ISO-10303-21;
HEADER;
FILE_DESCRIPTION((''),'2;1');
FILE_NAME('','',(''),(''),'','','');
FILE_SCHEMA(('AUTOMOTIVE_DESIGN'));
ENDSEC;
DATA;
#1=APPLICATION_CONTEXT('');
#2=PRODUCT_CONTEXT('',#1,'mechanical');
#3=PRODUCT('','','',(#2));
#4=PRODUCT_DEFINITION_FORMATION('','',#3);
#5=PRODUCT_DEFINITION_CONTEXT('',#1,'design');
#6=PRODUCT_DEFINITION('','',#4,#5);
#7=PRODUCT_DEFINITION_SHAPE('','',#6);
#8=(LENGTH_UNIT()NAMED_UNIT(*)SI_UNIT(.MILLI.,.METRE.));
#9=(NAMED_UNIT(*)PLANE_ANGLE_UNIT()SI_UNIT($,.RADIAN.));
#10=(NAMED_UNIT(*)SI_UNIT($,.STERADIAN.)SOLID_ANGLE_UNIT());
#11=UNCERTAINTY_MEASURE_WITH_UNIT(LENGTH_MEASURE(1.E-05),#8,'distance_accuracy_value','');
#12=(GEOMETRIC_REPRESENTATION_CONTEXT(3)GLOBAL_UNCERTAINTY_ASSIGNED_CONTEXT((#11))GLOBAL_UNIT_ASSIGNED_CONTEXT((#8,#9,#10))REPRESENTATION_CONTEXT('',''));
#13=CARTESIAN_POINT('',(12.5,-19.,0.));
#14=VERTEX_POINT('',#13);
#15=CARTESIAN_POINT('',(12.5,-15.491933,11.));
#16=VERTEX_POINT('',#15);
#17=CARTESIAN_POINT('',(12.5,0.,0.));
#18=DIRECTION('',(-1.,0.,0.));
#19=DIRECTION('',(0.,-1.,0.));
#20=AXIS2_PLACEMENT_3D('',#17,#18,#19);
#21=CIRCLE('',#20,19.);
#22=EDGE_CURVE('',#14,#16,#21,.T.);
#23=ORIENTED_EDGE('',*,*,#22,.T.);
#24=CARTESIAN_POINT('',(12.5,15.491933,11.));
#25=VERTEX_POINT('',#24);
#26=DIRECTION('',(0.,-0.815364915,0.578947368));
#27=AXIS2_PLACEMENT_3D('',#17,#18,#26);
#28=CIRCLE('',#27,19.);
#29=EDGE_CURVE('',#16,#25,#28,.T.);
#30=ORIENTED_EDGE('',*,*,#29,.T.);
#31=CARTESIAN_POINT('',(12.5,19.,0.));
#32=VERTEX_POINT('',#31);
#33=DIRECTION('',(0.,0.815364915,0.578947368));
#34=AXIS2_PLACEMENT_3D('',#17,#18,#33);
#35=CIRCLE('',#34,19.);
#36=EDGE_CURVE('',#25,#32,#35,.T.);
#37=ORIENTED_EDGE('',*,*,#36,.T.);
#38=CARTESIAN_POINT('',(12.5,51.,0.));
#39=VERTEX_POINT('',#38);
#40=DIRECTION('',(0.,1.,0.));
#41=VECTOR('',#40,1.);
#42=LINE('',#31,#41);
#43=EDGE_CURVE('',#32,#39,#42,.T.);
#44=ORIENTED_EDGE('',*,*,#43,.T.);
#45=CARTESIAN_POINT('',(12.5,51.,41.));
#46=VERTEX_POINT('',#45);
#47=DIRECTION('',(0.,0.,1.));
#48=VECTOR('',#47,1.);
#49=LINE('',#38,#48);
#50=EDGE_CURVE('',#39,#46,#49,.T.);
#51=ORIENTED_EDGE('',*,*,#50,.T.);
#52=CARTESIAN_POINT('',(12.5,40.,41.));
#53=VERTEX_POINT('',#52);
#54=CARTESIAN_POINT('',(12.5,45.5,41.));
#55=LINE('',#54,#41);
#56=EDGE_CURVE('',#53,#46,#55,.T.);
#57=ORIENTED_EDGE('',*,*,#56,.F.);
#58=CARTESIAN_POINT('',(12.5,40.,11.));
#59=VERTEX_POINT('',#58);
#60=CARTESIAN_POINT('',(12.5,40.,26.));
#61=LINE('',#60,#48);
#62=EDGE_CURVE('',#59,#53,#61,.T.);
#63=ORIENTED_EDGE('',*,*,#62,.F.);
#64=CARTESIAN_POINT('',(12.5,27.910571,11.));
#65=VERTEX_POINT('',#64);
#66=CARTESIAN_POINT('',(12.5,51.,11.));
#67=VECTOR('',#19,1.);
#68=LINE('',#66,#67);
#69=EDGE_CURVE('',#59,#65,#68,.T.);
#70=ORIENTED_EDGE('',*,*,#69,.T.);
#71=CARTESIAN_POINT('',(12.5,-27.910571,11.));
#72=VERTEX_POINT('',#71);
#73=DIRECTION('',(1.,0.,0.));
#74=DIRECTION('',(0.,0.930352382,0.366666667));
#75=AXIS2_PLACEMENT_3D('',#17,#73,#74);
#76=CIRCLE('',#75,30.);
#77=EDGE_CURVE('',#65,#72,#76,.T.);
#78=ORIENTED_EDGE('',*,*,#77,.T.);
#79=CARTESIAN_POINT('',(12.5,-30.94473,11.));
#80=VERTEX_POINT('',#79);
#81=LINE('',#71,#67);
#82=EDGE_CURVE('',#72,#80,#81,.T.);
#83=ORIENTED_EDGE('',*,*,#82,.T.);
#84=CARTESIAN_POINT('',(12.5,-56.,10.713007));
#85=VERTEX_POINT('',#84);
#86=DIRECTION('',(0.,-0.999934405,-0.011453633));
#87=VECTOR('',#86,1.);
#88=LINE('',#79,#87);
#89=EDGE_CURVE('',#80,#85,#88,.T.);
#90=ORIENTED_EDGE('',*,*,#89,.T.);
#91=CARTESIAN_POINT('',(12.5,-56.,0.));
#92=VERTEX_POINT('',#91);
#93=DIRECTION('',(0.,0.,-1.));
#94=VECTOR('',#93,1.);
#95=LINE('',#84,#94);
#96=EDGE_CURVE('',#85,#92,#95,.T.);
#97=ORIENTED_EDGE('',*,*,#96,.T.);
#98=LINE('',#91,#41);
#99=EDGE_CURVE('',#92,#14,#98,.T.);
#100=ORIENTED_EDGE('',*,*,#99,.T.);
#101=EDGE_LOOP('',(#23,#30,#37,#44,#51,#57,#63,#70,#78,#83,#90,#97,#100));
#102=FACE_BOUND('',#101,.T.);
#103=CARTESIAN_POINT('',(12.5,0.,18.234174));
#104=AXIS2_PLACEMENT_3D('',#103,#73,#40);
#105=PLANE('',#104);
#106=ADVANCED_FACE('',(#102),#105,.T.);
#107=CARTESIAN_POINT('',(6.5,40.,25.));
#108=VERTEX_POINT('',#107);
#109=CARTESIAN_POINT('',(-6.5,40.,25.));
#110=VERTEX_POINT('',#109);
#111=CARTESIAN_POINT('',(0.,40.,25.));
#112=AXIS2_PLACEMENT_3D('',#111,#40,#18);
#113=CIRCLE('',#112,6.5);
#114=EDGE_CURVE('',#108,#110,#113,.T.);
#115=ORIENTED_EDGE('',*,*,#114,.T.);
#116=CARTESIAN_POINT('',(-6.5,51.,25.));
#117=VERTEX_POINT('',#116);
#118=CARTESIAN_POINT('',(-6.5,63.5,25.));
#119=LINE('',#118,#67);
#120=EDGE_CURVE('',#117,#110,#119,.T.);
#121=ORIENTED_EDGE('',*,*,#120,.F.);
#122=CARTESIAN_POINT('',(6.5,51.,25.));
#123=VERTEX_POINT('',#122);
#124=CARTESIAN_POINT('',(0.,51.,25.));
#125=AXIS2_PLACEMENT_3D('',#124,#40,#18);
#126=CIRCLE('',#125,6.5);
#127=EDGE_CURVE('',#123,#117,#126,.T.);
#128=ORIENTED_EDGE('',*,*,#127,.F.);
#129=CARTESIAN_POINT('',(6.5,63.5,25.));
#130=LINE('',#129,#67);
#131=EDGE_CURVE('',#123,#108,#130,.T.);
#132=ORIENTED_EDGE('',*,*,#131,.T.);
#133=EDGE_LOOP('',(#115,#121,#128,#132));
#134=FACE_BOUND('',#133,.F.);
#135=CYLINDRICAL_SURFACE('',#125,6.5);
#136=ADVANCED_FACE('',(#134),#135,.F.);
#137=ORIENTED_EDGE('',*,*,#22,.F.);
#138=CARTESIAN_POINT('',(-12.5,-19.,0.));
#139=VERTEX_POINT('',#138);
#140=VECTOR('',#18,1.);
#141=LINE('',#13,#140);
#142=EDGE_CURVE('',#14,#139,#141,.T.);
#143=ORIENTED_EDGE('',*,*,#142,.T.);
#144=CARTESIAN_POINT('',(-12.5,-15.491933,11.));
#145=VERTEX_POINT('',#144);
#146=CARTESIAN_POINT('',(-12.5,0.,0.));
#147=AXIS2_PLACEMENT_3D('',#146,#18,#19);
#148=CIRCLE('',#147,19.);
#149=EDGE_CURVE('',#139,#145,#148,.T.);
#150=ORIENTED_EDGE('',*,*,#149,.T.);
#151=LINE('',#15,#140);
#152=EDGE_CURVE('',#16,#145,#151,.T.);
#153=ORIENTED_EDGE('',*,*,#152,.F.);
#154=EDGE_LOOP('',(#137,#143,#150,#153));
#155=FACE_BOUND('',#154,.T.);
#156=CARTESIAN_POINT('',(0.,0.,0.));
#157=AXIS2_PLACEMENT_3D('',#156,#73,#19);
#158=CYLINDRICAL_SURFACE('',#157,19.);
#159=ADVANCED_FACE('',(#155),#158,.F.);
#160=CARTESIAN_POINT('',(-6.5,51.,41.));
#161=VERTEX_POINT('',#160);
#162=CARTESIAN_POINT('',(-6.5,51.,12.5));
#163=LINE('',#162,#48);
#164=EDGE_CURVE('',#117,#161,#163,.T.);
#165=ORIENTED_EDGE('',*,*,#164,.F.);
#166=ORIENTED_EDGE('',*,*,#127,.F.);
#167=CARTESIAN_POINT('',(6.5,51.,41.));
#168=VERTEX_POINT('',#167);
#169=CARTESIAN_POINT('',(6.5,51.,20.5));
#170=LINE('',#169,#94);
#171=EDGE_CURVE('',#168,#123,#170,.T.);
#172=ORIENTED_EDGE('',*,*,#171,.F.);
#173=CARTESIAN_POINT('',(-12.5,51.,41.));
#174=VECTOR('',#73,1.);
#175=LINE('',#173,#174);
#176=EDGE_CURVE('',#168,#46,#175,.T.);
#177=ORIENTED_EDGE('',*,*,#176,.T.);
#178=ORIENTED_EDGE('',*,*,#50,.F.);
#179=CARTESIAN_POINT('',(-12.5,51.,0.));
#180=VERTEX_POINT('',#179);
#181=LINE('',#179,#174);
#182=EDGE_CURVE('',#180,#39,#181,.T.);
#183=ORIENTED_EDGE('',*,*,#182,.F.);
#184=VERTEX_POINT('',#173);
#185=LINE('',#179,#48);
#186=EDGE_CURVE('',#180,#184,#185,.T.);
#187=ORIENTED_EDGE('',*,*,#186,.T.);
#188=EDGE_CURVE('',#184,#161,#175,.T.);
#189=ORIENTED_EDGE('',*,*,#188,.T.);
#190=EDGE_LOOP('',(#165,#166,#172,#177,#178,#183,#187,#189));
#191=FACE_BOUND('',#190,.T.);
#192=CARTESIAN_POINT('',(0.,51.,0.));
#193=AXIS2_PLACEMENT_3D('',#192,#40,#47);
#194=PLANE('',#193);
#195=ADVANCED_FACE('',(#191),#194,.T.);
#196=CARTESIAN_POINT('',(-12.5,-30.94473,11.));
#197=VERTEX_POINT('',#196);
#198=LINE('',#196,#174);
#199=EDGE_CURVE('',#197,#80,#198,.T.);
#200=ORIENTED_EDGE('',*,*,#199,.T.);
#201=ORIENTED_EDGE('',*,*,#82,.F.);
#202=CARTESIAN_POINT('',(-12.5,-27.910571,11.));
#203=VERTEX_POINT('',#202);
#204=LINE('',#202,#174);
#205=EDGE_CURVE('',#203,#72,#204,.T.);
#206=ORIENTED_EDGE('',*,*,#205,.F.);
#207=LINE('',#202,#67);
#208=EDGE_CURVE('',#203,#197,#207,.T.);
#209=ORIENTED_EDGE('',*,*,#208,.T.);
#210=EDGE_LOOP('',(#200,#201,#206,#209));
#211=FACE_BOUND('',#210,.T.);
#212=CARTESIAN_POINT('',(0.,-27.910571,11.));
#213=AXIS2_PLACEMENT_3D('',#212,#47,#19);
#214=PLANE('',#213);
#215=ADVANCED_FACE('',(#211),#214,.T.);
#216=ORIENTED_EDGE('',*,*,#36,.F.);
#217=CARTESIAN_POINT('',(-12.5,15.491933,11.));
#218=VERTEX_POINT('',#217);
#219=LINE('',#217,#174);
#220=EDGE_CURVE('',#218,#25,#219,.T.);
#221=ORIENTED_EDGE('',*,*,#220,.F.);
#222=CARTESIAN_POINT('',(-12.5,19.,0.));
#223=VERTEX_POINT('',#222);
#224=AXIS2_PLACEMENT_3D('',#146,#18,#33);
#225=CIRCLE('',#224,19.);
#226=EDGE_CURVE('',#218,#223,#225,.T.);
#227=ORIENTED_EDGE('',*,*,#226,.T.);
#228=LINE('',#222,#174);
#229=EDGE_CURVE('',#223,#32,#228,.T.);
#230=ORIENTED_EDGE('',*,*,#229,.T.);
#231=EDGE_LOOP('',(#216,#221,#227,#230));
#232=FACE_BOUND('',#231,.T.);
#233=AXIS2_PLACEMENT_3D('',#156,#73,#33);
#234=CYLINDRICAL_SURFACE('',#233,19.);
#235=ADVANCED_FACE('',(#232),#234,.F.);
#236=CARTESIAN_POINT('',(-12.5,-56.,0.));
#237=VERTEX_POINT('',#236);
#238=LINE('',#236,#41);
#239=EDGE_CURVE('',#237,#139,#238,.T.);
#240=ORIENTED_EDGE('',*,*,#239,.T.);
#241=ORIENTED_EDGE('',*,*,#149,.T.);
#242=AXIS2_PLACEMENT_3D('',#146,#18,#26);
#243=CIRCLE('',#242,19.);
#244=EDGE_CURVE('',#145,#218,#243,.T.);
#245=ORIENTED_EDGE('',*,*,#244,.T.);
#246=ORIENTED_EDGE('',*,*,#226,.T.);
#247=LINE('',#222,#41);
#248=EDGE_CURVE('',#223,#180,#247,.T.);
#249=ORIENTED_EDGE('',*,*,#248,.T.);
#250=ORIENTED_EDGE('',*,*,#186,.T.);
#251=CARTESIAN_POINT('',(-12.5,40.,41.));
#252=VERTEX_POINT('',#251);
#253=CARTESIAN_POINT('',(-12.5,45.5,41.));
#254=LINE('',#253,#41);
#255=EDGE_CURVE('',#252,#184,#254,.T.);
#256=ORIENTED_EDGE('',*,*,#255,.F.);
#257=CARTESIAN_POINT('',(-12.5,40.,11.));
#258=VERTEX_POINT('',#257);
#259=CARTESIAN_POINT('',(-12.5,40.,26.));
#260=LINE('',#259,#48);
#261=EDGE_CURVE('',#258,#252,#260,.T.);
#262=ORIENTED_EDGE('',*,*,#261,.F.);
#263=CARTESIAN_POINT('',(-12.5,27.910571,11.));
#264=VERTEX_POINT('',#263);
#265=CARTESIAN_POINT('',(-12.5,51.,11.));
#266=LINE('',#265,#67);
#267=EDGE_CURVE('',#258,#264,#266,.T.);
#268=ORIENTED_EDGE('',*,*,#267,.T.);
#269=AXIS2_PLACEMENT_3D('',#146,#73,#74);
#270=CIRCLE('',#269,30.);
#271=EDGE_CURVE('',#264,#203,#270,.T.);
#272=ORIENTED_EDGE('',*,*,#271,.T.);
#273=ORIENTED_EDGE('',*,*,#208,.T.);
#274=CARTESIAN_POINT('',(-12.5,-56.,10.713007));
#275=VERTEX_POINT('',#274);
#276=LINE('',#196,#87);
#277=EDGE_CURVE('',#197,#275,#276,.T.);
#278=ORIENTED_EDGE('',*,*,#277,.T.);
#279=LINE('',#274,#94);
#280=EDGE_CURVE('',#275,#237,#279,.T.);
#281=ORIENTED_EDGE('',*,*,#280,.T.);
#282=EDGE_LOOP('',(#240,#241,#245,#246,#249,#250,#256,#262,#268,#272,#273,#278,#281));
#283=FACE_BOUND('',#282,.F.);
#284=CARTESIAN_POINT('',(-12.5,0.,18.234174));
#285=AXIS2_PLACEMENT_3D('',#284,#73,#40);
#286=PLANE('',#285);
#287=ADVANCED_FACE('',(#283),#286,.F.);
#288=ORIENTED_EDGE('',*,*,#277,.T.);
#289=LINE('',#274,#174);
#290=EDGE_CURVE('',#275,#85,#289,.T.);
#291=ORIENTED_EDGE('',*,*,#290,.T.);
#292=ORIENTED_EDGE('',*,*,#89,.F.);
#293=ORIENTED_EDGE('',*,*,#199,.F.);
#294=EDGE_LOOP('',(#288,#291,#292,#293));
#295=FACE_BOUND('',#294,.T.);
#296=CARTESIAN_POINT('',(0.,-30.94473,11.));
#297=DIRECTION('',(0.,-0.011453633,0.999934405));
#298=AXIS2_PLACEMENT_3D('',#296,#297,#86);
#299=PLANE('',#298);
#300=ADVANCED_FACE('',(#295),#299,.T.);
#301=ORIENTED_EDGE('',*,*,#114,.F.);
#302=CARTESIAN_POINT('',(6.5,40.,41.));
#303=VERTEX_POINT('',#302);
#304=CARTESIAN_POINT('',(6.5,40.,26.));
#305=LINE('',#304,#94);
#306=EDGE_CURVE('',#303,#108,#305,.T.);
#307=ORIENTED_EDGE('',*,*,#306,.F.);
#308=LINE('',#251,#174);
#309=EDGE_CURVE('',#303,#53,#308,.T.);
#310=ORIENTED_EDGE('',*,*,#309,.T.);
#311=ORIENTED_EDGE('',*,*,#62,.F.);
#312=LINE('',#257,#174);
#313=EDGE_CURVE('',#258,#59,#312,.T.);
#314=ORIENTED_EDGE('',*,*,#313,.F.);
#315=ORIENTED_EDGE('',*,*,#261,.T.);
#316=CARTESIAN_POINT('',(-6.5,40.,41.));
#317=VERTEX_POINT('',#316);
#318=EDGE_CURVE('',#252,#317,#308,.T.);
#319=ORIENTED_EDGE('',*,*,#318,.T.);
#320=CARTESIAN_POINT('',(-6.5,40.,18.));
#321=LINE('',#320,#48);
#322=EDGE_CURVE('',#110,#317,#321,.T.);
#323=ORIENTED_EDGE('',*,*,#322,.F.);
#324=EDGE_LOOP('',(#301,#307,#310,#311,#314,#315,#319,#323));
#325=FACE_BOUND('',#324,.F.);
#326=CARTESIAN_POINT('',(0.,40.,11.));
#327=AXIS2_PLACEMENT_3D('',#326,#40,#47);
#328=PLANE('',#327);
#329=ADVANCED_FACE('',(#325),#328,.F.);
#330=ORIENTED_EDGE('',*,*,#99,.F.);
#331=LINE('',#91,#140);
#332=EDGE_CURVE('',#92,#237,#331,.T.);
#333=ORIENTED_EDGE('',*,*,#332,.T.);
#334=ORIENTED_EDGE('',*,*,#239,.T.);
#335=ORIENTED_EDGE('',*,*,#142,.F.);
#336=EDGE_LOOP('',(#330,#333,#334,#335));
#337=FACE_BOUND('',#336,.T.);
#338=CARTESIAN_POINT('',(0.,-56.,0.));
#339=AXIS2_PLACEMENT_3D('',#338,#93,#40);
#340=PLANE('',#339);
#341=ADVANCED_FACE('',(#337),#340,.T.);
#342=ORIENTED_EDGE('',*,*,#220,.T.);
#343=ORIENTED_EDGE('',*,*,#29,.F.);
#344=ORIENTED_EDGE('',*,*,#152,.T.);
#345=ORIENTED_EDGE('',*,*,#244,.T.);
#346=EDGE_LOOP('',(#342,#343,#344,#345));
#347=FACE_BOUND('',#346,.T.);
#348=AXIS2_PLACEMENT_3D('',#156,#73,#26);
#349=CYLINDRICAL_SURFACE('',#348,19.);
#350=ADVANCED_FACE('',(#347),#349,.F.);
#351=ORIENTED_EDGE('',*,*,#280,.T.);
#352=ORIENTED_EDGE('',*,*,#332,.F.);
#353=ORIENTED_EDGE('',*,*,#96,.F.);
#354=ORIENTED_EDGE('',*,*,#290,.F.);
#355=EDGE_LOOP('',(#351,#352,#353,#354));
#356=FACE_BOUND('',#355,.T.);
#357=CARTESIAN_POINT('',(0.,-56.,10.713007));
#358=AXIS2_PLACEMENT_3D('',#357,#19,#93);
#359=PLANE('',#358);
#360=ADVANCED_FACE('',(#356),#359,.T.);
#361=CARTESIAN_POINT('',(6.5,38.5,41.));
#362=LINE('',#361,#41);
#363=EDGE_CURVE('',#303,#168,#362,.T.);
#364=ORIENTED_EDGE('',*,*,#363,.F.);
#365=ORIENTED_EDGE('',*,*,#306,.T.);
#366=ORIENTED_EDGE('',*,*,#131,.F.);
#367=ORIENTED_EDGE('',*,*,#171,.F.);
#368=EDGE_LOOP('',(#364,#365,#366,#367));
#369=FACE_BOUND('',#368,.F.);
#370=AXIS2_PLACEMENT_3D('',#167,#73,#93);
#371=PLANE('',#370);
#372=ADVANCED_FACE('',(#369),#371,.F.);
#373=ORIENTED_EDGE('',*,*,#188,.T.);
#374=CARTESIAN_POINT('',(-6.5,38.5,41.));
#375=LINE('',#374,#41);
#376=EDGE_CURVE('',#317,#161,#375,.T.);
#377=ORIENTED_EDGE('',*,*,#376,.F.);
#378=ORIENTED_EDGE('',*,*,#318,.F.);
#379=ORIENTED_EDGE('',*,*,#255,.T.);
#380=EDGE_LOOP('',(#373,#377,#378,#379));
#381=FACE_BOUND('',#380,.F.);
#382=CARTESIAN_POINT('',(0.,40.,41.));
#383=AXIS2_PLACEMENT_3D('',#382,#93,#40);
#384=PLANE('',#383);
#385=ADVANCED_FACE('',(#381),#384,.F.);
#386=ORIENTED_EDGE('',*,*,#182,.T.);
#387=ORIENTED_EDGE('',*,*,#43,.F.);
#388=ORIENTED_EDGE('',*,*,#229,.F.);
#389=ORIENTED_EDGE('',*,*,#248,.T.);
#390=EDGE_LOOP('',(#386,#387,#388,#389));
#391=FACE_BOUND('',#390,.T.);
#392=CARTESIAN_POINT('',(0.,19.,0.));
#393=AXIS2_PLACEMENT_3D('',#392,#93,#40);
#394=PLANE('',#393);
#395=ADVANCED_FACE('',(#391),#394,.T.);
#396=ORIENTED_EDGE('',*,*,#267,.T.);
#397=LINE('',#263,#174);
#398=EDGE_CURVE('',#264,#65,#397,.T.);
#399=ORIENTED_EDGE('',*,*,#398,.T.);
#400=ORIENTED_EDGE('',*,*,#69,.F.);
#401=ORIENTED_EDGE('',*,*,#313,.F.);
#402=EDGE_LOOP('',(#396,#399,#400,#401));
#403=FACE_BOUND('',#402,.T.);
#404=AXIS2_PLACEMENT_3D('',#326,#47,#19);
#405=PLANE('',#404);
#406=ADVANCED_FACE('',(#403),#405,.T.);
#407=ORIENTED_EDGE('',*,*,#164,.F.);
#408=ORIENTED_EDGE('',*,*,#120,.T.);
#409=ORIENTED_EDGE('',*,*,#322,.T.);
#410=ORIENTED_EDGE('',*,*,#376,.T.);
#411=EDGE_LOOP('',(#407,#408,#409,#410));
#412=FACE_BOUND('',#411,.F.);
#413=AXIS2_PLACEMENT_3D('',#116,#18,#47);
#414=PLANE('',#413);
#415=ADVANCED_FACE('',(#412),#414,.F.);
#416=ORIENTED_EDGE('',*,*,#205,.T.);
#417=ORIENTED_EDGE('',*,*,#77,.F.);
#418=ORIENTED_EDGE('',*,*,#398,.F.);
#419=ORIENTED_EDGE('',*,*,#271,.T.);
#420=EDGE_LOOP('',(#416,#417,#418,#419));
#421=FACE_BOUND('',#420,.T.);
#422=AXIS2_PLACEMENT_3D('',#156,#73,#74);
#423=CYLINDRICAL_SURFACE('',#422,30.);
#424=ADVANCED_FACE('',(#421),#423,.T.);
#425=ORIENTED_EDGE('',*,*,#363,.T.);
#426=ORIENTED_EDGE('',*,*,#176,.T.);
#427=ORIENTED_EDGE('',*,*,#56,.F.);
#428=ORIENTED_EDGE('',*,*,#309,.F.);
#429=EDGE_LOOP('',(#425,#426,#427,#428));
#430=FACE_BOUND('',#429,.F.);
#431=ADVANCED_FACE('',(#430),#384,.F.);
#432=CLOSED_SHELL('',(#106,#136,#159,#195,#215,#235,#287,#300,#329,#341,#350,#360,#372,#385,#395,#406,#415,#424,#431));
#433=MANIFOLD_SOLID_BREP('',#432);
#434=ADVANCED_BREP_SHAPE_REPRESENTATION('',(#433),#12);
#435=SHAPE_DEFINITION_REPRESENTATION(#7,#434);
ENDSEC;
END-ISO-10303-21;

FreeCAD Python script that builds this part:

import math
import FreeCAD as App
import Part
import Sketcher

doc = App.newDocument("Part")
body = doc.addObject("PartDesign::Body", "Body")

sketch1 = body.newObject("Sketcher::SketchObject", "Sketch")
sketch1.AttachmentSupport = (doc.getObject("YZ_Plane"), [""])
sketch1.MapMode = "FlatFace"
sketch1.addGeometry([
    Part.ArcOfCircle(Part.Circle(App.Vector(0, 0, 0), App.Vector(0, 0, 1), 19), math.radians(35), math.radians(145)),
    Part.ArcOfCircle(Part.Circle(App.Vector(0, 0, 0), App.Vector(0, 0, 1), 19), math.radians(0), math.radians(35)),
    Part.LineSegment(App.Vector(19, 0, 0), App.Vector(51, 0, 0)),
    Part.LineSegment(App.Vector(51, 0, 0), App.Vector(51, 41, 0)),
    Part.LineSegment(App.Vector(51, 41, 0), App.Vector(40, 41, 0)),
    Part.LineSegment(App.Vector(40, 41, 0), App.Vector(40, 11, 0)),
    Part.LineSegment(App.Vector(40, 11, 0), App.Vector(27.9, 11, 0)),
    Part.ArcOfCircle(Part.Circle(App.Vector(0, 0, 0), App.Vector(0, 0, 1), 30), math.radians(22), math.radians(158)),
    Part.LineSegment(App.Vector(-27.9, 11, 0), App.Vector(-30.9, 11, 0)),
    Part.LineSegment(App.Vector(-30.9, 11, 0), App.Vector(-56, 10.7, 0)),
    Part.LineSegment(App.Vector(-56, 10.7, 0), App.Vector(-56, 0, 0)),
    Part.LineSegment(App.Vector(-56, 0, 0), App.Vector(-19, 0, 0)),
    Part.ArcOfCircle(Part.Circle(App.Vector(0, 0, 0), App.Vector(0, 0, 1), 19), math.radians(145), math.radians(180)),
], False)
sketch1.addConstraint([
    Sketcher.Constraint("Tangent", 0, 1, 1, 2),
    Sketcher.Constraint("Coincident", 1, 1, 2, 1),
    Sketcher.Constraint("Coincident", 2, 2, 3, 1),
    Sketcher.Constraint("Coincident", 3, 2, 4, 1),
    Sketcher.Constraint("Coincident", 4, 2, 5, 1),
    Sketcher.Constraint("Coincident", 5, 2, 6, 1),
    Sketcher.Constraint("Coincident", 6, 2, 7, 1),
    Sketcher.Constraint("Coincident", 7, 2, 8, 1),
    Sketcher.Constraint("Coincident", 8, 2, 9, 1),
    Sketcher.Constraint("Coincident", 9, 2, 10, 1),
    Sketcher.Constraint("Coincident", 10, 2, 11, 1),
    Sketcher.Constraint("Coincident", 11, 2, 12, 2),
    Sketcher.Constraint("Tangent", 12, 1, 0, 2),
    Sketcher.Constraint("Horizontal", 2),
    Sketcher.Constraint("Vertical", 3),
    Sketcher.Constraint("Horizontal", 4),
    Sketcher.Constraint("Vertical", 5),
    Sketcher.Constraint("Horizontal", 6),
    Sketcher.Constraint("Horizontal", 8),
    Sketcher.Constraint("Vertical", 10),
    Sketcher.Constraint("Horizontal", 11),
    Sketcher.Constraint("Coincident", 0, 3, -1, 1),
    Sketcher.Constraint("Coincident", 7, 3, -1, 1),
    Sketcher.Constraint("Equal", 0, 1),
    Sketcher.Constraint("Equal", 1, 12),
    Sketcher.Constraint("PointOnObject", 1, 1, -1),
    Sketcher.Constraint("PointOnObject", 10, 2, -1),
    Sketcher.Constraint("Horizontal", 0, 1, 5, 2),
    Sketcher.Constraint("Horizontal", 6, 2, 7, 2),
    Sketcher.Constraint("Horizontal", 8, 2, 12, 1),
    Sketcher.Constraint("Radius", 0, 19.0),
    Sketcher.Constraint("Radius", 7, 30.0),
    Sketcher.Constraint("DistanceX", 2, 1, 2, 2, 32.0),
    Sketcher.Constraint("DistanceX", 4, 2, 4, 1, 11.0),
    Sketcher.Constraint("DistanceX", 11, 1, 11, 2, 37.0),
    Sketcher.Constraint("DistanceY", 3, 1, 3, 2, 41.0),
    Sketcher.Constraint("DistanceY", 5, 2, 5, 1, 30.0),
    Sketcher.Constraint("DistanceX", 8, 2, 8, 1, 3.034159),
    Sketcher.Constraint("DistanceY", 10, 2, 10, 1, 10.713007),
])
pad1 = body.newObject("PartDesign::Pad", "Pad")
pad1.Profile = sketch1
pad1.Length = 25
pad1.Midplane = True

sketch2 = body.newObject("Sketcher::SketchObject", "Sketch001")
sketch2.AttachmentSupport = (doc.getObject("XZ_Plane"), [""])
sketch2.MapMode = "FlatFace"
sketch2.AttachmentOffset = App.Placement(App.Vector(0, 0, -51), App.Rotation())
sketch2.addGeometry([
    Part.LineSegment(App.Vector(-6, 25, 0), App.Vector(-6, 41, 0)),
    Part.LineSegment(App.Vector(-6, 41, 0), App.Vector(6, 41, 0)),
    Part.LineSegment(App.Vector(6, 41, 0), App.Vector(6, 25, 0)),
    Part.ArcOfCircle(Part.Circle(App.Vector(0, 25, 0), App.Vector(0, 0, 1), 6), math.radians(180), math.radians(360)),
], False)
sketch2.addConstraint([
    Sketcher.Constraint("Coincident", 0, 2, 1, 1),
    Sketcher.Constraint("Coincident", 1, 2, 2, 1),
    Sketcher.Constraint("Tangent", 2, 2, 3, 2),
    Sketcher.Constraint("Tangent", 3, 1, 0, 1),
    Sketcher.Constraint("Vertical", 0),
    Sketcher.Constraint("Horizontal", 1),
    Sketcher.Constraint("Vertical", 2),
    Sketcher.Constraint("PointOnObject", 3, 3, -2),
    Sketcher.Constraint("Radius", 3, 6.5),
    Sketcher.Constraint("DistanceY", 0, 1, 0, 2, 16.0),
    Sketcher.Constraint("DistanceY", -1, 1, 3, 3, 25.0),
])
pocket1 = body.newObject("PartDesign::Pocket", "Pocket")
pocket1.Profile = sketch2
pocket1.Length = 25
pocket1.Midplane = True

doc.recompute()
